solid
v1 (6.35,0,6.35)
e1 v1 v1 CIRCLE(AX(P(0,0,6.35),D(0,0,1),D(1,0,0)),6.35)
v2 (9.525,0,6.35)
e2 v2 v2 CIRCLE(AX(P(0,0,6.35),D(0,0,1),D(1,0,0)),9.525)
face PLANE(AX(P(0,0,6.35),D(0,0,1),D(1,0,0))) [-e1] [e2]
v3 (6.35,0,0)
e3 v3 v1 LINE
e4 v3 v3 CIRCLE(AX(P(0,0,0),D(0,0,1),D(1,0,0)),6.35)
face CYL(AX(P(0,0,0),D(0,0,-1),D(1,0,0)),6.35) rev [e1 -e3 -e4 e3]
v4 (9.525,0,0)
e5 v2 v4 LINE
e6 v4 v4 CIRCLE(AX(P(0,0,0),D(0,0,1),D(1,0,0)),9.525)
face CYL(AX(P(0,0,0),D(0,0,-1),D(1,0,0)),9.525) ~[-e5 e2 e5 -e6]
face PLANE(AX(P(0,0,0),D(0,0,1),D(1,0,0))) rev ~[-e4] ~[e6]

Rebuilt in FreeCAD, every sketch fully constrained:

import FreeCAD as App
import Part
import Sketcher
Q = App.Units.Quantity

doc = App.newDocument("Part")
params = doc.addObject("Spreadsheet::Sheet", "Params")
for row, (alias, value) in enumerate([
    ("sketch1_diameter", "0.5 in"),
    ("sketch1_diameter2", "0.75 in"),
    ("pad1_length", "4.99189 mm"),
    ("sketch2_diameter", "0.5 in"),
    ("sketch2_diameter2", "0.75 in"),
    ("pad2_length", "0.25 in"),
], start=1):
    params.set(f"A{row}", alias)
    params.set(f"B{row}", "=" + value)
    params.setAlias(f"B{row}", alias)

body = doc.addObject("PartDesign::Body", "Body")

sketch1 = body.newObject("Sketcher::SketchObject", "Sketch")
sketch1.AttachmentSupport = (doc.getObject("XY_Plane"), [""])
sketch1.MapMode = "FlatFace"
sketch1.addGeometry(Part.Circle(App.Vector(0, 0, 0), App.Vector(0, 0, 1), 10), False)
sketch1.addGeometry(Part.Circle(App.Vector(0, 0, 0), App.Vector(0, 0, 1), 6), False)
sketch1.addConstraint(Sketcher.Constraint("Coincident", 0, 3, -1, 1))
sketch1.addConstraint(Sketcher.Constraint("Coincident", 1, 3, -1, 1))
sketch1.addConstraint(Sketcher.Constraint("Diameter", 1, Q("0.5 in")))
sketch1.addConstraint(Sketcher.Constraint("Diameter", 0, Q("0.75 in")))
sketch1.setExpression("Constraints[2]", "Params.sketch1_diameter")
sketch1.setExpression("Constraints[3]", "Params.sketch1_diameter2")
pad1 = body.newObject("PartDesign::Pad", "Pad")
pad1.Profile = sketch1
pad1.setExpression("Length", "Params.pad1_length")

sketch2 = body.newObject("Sketcher::SketchObject", "Sketch001")
sketch2.AttachmentSupport = (doc.getObject("XY_Plane"), [""])
sketch2.MapMode = "FlatFace"
sketch2.addGeometry(Part.Circle(App.Vector(0, 0, 0), App.Vector(0, 0, 1), 10), False)
sketch2.addGeometry(Part.Circle(App.Vector(0, 0, 0), App.Vector(0, 0, 1), 6), False)
sketch2.addConstraint(Sketcher.Constraint("Coincident", 0, 3, -1, 1))
sketch2.addConstraint(Sketcher.Constraint("Coincident", 1, 3, -1, 1))
sketch2.addConstraint(Sketcher.Constraint("Diameter", 1, Q("0.5 in")))
sketch2.addConstraint(Sketcher.Constraint("Diameter", 0, Q("0.75 in")))
sketch2.setExpression("Constraints[2]", "Params.sketch2_diameter")
sketch2.setExpression("Constraints[3]", "Params.sketch2_diameter2")
pad2 = body.newObject("PartDesign::Pad", "Pad001")
pad2.Profile = sketch2
pad2.setExpression("Length", "Params.pad2_length")

doc.recompute()
